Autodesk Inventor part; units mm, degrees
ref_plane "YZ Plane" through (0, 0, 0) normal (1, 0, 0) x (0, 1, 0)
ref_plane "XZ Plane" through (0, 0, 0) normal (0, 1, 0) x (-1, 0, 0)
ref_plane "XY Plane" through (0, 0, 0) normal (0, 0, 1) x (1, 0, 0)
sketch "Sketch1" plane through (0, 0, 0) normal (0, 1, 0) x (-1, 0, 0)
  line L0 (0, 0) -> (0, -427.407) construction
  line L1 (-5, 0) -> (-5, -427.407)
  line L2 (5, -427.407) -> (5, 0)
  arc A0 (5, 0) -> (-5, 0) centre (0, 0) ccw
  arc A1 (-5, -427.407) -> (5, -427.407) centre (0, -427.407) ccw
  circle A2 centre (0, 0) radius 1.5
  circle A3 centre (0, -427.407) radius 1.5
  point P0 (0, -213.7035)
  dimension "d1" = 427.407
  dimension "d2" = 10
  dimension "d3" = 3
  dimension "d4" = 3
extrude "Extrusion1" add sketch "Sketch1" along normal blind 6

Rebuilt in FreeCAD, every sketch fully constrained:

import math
import FreeCAD as App
import Part
import Sketcher

V = App.Vector

doc = App.newDocument("Part")
body = doc.addObject("PartDesign::Body", "Body")

# Sketch on XZ plane
sketch1 = body.newObject("Sketcher::SketchObject", "Sketch")
sketch1.AttachmentSupport = (doc.getObject("XZ_Plane"), [""])
sketch1.MapMode = "FlatFace"
sketch1.addGeometry([
    Part.ArcOfCircle(Part.Circle(V(0, 0, 0), V(0, 0, 1), 5), math.radians(0), math.radians(180)),  # 0
    Part.LineSegment(V(5, 0, 0), V(5, -427.407, 0)),  # 1
    Part.ArcOfCircle(Part.Circle(V(0, -427.407, 0), V(0, 0, 1), 5), math.radians(180), math.radians(360)),  # 2
    Part.LineSegment(V(-5, -427.407, 0), V(-5, 0, 0)),  # 3
    Part.Circle(V(0, -427.407, 0), V(0, 0, 1), 1.5),  # 4
    Part.Circle(V(0, 0, 0), V(0, 0, 1), 1.5),  # 5
], False)
sketch1.addConstraint([
    Sketcher.Constraint("Tangent", 0, 1, 1, 1),
    Sketcher.Constraint("Tangent", 1, 2, 2, 2),
    Sketcher.Constraint("Tangent", 2, 1, 3, 1),
    Sketcher.Constraint("Tangent", 3, 2, 0, 2),
    Sketcher.Constraint("Vertical", 1),
    Sketcher.Constraint("Vertical", 3),
    Sketcher.Constraint("Coincident", 0, 3, -1, 1),
    Sketcher.Constraint("Coincident", 5, 3, -1, 1),
    Sketcher.Constraint("Coincident", 4, 3, 2, 3),
    Sketcher.Constraint("Equal", 4, 5),
    Sketcher.Constraint("Diameter", 4, 3.0),
    Sketcher.Constraint("Radius", 0, 5.0),
    Sketcher.Constraint("DistanceY", 1, 2, 1, 1, 427.407),
])
pad1 = body.newObject("PartDesign::Pad", "Pad")
pad1.Profile = sketch1
pad1.Length = 6
pad1.Reversed = True

doc.recompute()
